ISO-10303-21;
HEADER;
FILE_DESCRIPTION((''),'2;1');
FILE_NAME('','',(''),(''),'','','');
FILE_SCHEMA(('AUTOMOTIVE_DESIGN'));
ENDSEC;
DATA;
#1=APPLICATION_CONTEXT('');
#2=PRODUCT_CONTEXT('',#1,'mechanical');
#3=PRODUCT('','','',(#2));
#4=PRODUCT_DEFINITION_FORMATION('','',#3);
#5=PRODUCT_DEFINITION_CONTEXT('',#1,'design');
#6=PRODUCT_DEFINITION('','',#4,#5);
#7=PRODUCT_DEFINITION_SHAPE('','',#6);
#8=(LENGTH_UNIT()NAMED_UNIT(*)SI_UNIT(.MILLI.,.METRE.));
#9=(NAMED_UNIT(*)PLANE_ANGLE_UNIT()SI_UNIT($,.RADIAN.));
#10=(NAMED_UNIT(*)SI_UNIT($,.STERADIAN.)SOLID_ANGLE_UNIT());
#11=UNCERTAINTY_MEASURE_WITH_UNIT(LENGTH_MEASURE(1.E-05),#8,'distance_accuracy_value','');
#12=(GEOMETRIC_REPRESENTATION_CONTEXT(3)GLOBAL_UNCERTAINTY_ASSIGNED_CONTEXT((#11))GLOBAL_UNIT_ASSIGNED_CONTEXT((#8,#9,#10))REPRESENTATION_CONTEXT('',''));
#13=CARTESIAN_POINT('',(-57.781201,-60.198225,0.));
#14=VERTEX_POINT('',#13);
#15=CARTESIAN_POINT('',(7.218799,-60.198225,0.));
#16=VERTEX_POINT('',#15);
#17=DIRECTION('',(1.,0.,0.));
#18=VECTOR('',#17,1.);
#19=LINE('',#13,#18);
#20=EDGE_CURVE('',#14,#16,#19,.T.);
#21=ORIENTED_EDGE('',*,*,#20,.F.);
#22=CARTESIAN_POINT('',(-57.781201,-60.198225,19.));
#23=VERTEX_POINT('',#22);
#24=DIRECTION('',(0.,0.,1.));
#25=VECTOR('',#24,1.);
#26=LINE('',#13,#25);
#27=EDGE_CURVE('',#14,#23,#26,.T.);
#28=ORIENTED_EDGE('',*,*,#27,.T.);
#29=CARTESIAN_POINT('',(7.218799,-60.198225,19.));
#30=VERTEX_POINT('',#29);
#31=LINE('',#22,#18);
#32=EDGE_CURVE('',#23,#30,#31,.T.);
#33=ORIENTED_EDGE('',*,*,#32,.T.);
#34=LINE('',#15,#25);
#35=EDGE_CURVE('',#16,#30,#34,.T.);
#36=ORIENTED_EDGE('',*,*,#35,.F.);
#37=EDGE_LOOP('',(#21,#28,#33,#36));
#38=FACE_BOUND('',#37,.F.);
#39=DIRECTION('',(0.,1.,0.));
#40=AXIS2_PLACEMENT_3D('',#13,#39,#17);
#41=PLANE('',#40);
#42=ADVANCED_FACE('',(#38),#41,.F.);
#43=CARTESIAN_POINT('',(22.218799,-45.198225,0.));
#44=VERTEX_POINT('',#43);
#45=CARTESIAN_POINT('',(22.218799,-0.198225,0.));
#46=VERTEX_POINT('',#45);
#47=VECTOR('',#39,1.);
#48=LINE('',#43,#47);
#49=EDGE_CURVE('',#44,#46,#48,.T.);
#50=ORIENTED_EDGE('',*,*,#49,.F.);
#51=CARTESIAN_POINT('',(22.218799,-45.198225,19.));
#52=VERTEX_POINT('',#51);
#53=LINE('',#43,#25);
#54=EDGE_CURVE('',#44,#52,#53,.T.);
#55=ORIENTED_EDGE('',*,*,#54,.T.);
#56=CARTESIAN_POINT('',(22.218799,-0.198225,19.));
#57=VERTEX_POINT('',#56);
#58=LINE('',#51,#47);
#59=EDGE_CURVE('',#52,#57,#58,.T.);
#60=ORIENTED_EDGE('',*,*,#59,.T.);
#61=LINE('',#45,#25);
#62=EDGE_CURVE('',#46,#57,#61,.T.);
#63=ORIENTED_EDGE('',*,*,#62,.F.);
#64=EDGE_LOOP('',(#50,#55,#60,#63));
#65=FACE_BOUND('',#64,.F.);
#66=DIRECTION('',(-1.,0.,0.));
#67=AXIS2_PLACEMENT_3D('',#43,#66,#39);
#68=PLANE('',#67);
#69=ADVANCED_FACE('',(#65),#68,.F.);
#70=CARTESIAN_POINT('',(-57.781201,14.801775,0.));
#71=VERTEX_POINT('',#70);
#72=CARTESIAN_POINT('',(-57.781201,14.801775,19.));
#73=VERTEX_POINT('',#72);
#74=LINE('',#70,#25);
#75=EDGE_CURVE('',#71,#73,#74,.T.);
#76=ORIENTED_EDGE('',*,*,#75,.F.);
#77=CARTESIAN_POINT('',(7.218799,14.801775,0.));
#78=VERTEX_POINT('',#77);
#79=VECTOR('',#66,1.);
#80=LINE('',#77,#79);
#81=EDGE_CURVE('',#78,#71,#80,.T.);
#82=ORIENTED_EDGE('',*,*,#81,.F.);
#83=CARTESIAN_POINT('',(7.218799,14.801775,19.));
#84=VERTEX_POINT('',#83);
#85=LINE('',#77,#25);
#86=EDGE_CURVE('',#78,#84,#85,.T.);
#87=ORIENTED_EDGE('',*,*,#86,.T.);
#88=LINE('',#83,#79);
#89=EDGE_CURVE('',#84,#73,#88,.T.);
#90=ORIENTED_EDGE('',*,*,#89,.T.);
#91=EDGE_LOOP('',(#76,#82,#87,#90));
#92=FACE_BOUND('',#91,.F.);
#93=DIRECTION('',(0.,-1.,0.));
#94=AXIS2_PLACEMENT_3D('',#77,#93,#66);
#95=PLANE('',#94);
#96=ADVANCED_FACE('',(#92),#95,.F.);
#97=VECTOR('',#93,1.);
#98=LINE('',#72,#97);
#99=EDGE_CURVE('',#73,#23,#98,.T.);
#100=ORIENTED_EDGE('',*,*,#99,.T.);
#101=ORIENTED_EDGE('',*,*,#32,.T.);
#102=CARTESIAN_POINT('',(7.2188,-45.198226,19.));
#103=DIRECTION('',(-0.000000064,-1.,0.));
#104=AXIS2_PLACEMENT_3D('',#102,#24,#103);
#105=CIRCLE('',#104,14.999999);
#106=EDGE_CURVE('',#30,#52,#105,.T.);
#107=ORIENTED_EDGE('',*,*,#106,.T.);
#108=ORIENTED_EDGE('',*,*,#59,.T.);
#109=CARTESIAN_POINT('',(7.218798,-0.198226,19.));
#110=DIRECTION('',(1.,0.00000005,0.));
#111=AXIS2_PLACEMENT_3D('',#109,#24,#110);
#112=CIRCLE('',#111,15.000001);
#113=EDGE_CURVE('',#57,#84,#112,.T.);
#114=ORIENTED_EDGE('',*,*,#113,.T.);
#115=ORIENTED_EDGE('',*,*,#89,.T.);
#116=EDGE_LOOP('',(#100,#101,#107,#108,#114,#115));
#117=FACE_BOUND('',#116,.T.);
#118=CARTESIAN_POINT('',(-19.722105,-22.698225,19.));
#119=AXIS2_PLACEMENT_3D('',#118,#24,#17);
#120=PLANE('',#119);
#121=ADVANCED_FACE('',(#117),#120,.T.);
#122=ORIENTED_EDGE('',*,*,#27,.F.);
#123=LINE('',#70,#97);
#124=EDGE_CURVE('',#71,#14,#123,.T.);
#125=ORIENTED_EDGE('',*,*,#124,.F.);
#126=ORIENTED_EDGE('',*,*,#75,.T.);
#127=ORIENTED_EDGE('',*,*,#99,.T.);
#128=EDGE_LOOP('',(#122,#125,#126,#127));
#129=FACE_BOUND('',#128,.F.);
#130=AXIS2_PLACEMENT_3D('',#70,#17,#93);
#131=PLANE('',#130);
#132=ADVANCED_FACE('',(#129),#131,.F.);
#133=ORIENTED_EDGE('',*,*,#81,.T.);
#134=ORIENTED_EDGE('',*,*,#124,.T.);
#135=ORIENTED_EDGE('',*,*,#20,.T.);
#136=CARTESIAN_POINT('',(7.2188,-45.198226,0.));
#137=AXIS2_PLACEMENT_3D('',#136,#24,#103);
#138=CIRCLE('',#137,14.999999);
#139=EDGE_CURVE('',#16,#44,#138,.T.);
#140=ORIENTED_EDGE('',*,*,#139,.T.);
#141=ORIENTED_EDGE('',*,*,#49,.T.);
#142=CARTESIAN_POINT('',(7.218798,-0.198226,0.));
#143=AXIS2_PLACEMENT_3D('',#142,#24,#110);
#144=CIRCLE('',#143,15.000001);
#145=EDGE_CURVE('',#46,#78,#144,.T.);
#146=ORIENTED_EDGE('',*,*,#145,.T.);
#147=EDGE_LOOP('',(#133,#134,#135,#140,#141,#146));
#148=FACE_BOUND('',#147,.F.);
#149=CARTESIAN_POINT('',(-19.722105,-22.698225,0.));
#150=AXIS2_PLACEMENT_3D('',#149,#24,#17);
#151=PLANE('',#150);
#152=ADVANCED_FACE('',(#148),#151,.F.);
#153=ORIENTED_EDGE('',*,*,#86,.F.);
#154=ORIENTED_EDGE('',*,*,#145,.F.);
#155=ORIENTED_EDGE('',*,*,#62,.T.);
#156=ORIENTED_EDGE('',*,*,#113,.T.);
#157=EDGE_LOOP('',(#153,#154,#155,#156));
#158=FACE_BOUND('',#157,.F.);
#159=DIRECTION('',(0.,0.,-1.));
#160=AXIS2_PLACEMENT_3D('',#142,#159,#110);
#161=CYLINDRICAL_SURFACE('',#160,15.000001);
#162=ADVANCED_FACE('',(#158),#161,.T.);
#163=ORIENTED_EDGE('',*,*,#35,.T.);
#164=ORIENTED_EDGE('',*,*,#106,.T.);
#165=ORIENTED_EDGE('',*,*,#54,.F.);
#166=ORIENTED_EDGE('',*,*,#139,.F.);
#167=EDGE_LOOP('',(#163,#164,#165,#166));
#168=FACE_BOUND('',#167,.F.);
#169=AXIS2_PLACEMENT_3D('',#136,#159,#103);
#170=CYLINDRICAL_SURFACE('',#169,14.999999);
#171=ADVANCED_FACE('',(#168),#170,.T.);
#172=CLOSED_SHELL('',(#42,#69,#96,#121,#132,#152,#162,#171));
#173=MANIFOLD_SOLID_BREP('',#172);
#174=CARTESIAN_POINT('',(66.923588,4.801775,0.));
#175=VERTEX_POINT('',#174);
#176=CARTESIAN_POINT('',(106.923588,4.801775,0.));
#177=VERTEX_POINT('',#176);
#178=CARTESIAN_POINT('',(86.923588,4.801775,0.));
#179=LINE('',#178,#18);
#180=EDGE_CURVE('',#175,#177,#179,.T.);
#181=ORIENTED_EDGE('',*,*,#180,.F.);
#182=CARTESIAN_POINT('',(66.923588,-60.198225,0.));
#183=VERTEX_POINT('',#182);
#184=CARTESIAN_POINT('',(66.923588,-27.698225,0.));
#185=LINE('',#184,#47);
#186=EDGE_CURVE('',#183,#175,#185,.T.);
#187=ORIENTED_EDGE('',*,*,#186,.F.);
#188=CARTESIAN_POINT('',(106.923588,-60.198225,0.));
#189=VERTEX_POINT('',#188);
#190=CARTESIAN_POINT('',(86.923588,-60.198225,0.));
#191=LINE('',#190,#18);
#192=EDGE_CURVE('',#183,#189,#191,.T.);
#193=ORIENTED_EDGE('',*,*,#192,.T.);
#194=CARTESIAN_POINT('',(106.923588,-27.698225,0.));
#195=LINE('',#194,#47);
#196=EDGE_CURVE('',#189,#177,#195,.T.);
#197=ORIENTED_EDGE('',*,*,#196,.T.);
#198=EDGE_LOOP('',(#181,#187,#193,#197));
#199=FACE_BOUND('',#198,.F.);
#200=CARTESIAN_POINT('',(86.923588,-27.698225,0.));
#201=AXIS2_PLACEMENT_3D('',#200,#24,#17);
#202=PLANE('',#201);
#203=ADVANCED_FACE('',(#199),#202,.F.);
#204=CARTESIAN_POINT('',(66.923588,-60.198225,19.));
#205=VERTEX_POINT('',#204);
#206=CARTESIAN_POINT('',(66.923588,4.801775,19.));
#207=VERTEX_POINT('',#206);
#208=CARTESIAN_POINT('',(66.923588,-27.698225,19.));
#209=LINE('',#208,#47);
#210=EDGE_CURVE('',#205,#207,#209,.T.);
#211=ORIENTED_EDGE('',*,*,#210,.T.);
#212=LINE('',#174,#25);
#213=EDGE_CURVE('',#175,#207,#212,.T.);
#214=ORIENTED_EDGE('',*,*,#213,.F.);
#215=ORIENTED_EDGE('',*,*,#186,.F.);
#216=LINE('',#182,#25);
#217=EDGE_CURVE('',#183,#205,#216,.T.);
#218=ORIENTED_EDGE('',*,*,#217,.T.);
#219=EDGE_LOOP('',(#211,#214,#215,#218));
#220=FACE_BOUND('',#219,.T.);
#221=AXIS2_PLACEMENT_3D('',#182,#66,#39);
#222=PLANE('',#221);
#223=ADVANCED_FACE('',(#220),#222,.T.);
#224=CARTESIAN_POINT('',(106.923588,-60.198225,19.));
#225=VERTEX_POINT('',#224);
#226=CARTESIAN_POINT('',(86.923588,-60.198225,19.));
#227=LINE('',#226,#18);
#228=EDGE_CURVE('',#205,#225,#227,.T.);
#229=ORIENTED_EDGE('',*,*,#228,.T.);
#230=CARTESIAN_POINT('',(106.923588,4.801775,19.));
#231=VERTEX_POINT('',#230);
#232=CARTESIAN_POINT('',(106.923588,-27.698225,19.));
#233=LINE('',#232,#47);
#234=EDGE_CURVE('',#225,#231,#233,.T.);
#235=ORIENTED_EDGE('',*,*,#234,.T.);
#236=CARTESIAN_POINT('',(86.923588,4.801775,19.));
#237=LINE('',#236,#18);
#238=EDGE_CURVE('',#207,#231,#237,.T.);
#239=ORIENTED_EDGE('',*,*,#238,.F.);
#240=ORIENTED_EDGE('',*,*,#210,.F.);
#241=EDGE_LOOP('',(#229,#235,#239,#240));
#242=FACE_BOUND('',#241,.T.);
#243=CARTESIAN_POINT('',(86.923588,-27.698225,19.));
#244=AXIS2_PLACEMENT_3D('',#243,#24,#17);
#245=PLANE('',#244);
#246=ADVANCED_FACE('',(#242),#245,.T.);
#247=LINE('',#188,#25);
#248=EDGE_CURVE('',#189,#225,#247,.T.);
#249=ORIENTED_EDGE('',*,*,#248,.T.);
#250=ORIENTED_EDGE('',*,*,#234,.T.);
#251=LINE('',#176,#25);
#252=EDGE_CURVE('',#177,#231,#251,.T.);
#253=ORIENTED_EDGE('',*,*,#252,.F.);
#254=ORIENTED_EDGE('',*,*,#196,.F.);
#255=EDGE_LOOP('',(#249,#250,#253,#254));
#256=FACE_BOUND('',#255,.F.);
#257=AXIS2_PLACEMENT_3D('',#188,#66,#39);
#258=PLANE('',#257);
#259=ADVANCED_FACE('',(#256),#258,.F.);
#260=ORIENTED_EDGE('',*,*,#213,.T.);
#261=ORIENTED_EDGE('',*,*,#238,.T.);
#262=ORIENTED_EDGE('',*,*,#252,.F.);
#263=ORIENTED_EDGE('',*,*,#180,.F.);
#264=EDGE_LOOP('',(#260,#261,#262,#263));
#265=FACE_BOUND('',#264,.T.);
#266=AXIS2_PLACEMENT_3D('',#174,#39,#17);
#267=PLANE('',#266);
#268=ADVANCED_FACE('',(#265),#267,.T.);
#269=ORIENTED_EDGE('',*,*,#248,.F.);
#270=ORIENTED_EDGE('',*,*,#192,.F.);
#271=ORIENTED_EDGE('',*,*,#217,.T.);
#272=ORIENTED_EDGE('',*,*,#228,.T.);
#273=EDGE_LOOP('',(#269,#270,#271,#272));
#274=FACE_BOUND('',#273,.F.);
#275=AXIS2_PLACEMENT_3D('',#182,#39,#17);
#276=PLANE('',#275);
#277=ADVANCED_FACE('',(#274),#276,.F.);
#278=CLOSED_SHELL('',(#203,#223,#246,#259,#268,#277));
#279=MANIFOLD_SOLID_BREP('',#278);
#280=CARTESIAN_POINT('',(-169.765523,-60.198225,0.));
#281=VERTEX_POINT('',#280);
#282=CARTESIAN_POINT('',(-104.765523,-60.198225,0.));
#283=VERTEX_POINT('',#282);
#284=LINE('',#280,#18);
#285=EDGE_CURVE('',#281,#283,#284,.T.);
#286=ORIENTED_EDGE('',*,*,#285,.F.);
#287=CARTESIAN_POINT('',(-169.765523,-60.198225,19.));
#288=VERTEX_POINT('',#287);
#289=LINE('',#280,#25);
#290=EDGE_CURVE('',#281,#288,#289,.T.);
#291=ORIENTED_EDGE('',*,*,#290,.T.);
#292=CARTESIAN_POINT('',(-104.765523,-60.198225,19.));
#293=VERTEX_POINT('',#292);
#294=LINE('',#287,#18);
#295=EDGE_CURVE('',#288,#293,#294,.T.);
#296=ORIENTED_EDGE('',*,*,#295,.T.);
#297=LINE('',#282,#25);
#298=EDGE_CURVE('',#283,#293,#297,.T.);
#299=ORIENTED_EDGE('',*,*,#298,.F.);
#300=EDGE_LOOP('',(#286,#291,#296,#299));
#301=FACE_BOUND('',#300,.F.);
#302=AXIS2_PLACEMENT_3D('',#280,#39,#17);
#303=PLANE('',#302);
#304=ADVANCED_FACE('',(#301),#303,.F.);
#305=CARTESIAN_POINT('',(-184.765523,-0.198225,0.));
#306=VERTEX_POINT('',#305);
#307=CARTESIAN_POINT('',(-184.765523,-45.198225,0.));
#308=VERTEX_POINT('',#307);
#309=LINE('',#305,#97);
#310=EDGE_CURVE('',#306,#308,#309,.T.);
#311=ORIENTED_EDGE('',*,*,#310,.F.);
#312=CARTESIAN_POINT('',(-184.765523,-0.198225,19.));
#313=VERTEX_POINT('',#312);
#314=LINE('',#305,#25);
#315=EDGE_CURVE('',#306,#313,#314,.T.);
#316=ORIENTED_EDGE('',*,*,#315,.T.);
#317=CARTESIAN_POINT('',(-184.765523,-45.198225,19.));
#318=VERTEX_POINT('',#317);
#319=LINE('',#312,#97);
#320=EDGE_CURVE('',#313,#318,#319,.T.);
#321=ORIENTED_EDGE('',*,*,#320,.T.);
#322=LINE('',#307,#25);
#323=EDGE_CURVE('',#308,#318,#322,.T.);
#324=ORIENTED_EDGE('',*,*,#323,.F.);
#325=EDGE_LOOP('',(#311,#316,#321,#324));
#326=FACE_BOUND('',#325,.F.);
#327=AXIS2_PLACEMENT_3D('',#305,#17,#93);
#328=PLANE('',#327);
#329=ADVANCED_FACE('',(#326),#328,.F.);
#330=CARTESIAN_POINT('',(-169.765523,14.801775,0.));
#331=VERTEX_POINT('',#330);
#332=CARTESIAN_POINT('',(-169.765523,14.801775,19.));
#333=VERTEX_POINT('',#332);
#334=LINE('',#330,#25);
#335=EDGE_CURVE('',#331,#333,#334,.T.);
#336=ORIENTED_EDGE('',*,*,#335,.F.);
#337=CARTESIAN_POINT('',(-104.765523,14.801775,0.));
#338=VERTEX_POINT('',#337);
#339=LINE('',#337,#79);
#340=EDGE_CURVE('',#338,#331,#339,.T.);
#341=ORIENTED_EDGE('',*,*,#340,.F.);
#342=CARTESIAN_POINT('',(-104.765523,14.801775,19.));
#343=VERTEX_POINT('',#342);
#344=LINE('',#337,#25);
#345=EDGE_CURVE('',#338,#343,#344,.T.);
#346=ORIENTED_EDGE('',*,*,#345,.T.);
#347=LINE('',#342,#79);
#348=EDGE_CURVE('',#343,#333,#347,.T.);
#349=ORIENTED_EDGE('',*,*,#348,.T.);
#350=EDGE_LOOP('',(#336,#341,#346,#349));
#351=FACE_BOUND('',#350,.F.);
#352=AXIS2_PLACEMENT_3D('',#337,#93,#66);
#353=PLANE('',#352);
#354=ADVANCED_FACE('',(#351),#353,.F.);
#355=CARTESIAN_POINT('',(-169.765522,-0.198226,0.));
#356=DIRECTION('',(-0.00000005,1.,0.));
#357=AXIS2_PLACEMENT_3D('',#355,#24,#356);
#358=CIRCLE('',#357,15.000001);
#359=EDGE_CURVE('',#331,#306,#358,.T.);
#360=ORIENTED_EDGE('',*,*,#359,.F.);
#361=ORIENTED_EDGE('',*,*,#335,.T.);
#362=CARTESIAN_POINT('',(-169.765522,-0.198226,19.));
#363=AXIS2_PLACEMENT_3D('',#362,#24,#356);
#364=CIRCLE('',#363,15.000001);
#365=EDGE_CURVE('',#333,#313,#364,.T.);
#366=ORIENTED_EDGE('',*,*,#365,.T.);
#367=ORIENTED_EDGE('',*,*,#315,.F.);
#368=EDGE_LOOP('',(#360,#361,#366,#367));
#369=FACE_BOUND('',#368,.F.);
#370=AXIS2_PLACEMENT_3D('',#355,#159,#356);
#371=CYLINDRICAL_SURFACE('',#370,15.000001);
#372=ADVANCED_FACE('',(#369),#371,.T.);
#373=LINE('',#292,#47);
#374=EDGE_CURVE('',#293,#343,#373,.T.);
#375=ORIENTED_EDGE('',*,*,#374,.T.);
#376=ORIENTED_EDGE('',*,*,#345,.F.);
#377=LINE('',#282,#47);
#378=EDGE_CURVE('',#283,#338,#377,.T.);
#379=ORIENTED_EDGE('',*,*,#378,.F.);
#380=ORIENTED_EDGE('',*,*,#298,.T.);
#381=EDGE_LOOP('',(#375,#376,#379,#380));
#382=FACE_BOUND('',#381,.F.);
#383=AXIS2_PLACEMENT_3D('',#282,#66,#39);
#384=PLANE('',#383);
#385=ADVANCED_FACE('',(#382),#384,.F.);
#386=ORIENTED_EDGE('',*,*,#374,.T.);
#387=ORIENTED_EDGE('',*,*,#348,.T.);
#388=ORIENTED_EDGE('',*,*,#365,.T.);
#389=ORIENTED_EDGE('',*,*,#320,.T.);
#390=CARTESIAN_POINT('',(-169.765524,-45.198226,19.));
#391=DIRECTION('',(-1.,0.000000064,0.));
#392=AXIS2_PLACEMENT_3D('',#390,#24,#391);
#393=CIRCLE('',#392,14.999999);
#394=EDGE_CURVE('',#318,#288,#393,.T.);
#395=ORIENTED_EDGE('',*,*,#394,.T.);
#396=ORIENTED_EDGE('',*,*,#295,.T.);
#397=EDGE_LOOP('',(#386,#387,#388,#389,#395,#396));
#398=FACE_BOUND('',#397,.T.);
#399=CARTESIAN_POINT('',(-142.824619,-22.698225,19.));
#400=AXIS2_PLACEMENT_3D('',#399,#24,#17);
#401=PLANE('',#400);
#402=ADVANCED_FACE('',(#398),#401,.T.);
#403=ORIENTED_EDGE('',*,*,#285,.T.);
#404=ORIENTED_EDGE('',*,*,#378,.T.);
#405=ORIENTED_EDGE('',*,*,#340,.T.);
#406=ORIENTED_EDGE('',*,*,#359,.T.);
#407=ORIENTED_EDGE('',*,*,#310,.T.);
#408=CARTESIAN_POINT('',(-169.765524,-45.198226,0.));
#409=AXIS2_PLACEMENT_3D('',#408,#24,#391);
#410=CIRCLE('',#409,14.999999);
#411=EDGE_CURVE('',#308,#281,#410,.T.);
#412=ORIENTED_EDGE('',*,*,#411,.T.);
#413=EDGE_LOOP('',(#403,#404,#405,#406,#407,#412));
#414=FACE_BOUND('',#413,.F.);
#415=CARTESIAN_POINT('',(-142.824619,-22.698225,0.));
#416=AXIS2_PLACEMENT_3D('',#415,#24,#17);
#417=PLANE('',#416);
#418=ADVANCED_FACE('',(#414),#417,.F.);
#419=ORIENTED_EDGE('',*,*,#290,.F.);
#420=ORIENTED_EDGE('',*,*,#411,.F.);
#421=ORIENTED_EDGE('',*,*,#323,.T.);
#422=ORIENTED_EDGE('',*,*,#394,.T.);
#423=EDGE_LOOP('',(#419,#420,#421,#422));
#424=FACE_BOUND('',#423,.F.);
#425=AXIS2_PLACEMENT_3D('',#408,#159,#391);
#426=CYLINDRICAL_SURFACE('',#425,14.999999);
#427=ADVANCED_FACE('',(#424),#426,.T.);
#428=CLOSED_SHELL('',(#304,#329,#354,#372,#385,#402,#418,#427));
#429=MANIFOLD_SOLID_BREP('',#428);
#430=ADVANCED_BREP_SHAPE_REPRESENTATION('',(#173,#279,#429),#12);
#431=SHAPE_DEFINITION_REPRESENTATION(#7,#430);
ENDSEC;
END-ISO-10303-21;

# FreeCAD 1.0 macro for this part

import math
import FreeCAD as App
import Part
import Sketcher
from FreeCAD import Vector


def add_polygon(sketch, points):
    """Adds a closed chain of lines whose ends are joined by coincident constraints."""
    first, n = sketch.GeometryCount, len(points)
    for a, b in zip(points, points[1:] + points[:1]):
        sketch.addGeometry(Part.LineSegment(App.Vector(*a, 0), App.Vector(*b, 0)), False)
    for i in range(n):
        sketch.addConstraint(Sketcher.Constraint("Coincident", first + i, 2, first + (i + 1) % n, 1))

doc = App.newDocument("Part")
params = doc.addObject("Spreadsheet::Sheet", "Params")
for row, (alias, value) in enumerate([
    ("sketch1_radius", "15.000001 mm"),
    ("sketch1_width", "65 mm"),
    ("sketch1_width2", "40 mm"),
    ("sketch1_height", "45 mm"),
    ("pad1_length", "19 mm"),
], start=1):
    params.set(f"A{row}", alias)
    params.set(f"B{row}", "=" + value)
    params.setAlias(f"B{row}", alias)

body = doc.addObject("PartDesign::Body", "Body")
body.AllowCompound = True

# Sketch on XY plane
sketch1 = body.newObject("Sketcher::SketchObject", "Sketch")
sketch1.AttachmentSupport = (doc.getObject("XY_Plane"), [""])
sketch1.MapMode = "FlatFace"
sketch1.addGeometry(Part.LineSegment(Vector(-105, 15, 0), Vector(-170, 15, 0)), False)  # 0
sketch1.addGeometry(Part.ArcOfCircle(Part.Circle(Vector(-170, 0, 0), Vector(0, 0, 1), 15), math.radians(90), math.radians(180)), False)  # 1
sketch1.addGeometry(Part.LineSegment(Vector(-185, 0, 0), Vector(-185, -45, 0)), False)  # 2
sketch1.addGeometry(Part.ArcOfCircle(Part.Circle(Vector(-170, -45, 0), Vector(0, 0, 1), 15), math.radians(180), math.radians(270)), False)  # 3
sketch1.addGeometry(Part.LineSegment(Vector(-170, -60, 0), Vector(-105, -60, 0)), False)  # 4
sketch1.addGeometry(Part.LineSegment(Vector(-105, -60, 0), Vector(-105, 15, 0)), False)  # 5
sketch1.addGeometry(Part.LineSegment(Vector(7, 15, 0), Vector(-58, 15, 0)), False)  # 6
sketch1.addGeometry(Part.LineSegment(Vector(-58, 15, 0), Vector(-58, -60, 0)), False)  # 7
sketch1.addGeometry(Part.LineSegment(Vector(-58, -60, 0), Vector(7, -60, 0)), False)  # 8
sketch1.addGeometry(Part.ArcOfCircle(Part.Circle(Vector(7, -45, 0), Vector(0, 0, 1), 15), math.radians(-90), math.radians(0)), False)  # 9
sketch1.addGeometry(Part.LineSegment(Vector(22, -45, 0), Vector(22, 0, 0)), False)  # 10
sketch1.addGeometry(Part.ArcOfCircle(Part.Circle(Vector(7, 0, 0), Vector(0, 0, 1), 15), math.radians(0), math.radians(90)), False)  # 11
add_polygon(sketch1, [(67, 5), (67, -60), (107, -60), (107, 5)])  # lines 12-15
sketch1.addConstraint(Sketcher.Constraint("Tangent", 0, 2, 1, 1))
sketch1.addConstraint(Sketcher.Constraint("Tangent", 1, 2, 2, 1))
sketch1.addConstraint(Sketcher.Constraint("Tangent", 2, 2, 3, 1))
sketch1.addConstraint(Sketcher.Constraint("Tangent", 3, 2, 4, 1))
sketch1.addConstraint(Sketcher.Constraint("Coincident", 4, 2, 5, 1))
sketch1.addConstraint(Sketcher.Constraint("Coincident", 5, 2, 0, 1))
sketch1.addConstraint(Sketcher.Constraint("Coincident", 6, 2, 7, 1))
sketch1.addConstraint(Sketcher.Constraint("Coincident", 7, 2, 8, 1))
sketch1.addConstraint(Sketcher.Constraint("Tangent", 8, 2, 9, 1))
sketch1.addConstraint(Sketcher.Constraint("Tangent", 9, 2, 10, 1))
sketch1.addConstraint(Sketcher.Constraint("Tangent", 10, 2, 11, 1))
sketch1.addConstraint(Sketcher.Constraint("Tangent", 11, 2, 6, 1))
sketch1.addConstraint(Sketcher.Constraint("Horizontal", 0))
sketch1.addConstraint(Sketcher.Constraint("Vertical", 2))
sketch1.addConstraint(Sketcher.Constraint("Horizontal", 4))
sketch1.addConstraint(Sketcher.Constraint("Vertical", 5))
sketch1.addConstraint(Sketcher.Constraint("Horizontal", 6))
sketch1.addConstraint(Sketcher.Constraint("Vertical", 7))
sketch1.addConstraint(Sketcher.Constraint("Horizontal", 8))
sketch1.addConstraint(Sketcher.Constraint("Vertical", 10))
sketch1.addConstraint(Sketcher.Constraint("Vertical", 12))
sketch1.addConstraint(Sketcher.Constraint("Horizontal", 13))
sketch1.addConstraint(Sketcher.Constraint("Vertical", 14))
sketch1.addConstraint(Sketcher.Constraint("Horizontal", 15))
sketch1.addConstraint(Sketcher.Constraint("Equal", 1, 3))
sketch1.addConstraint(Sketcher.Constraint("Equal", 3, 9))
sketch1.addConstraint(Sketcher.Constraint("Equal", 9, 11))
sketch1.addConstraint(Sketcher.Constraint("Horizontal", 3, 3, 9, 3))
sketch1.addConstraint(Sketcher.Constraint("Horizontal", 1, 3, 11, 3))
sketch1.addConstraint(Sketcher.Constraint("Horizontal", 8, 2, 12, 2))
sketch1.addConstraint(Sketcher.Constraint("Equal", 4, 6))
sketch1.addConstraint(Sketcher.Constraint("Equal", 8, 12))
sketch1.addConstraint(Sketcher.Constraint("Radius", 1, 15.000001))
sketch1.addConstraint(Sketcher.Constraint("DistanceX", 0, 2, 0, 1, 65.0))
sketch1.addConstraint(Sketcher.Constraint("DistanceX", 13, 1, 13, 2, 40.0))
sketch1.addConstraint(Sketcher.Constraint("DistanceY", 2, 2, 2, 1, 45.0))
sketch1.addConstraint(Sketcher.Constraint("DistanceX", -1, 1, 9, 3, 7.2188))
sketch1.addConstraint(Sketcher.Constraint("DistanceX", 1, 3, 11, 3, 176.984321))
sketch1.addConstraint(Sketcher.Constraint("DistanceX", 9, 2, 12, 2, 44.704789))
sketch1.addConstraint(Sketcher.Constraint("DistanceY", 1, 3, -1, 1, 0.198226))
sketch1.setExpression("Constraints[36]", "Params.sketch1_radius")
sketch1.setExpression("Constraints[37]", "Params.sketch1_width")
sketch1.setExpression("Constraints[38]", "Params.sketch1_width2")
sketch1.setExpression("Constraints[39]", "Params.sketch1_height")
pad1 = body.newObject("PartDesign::Pad", "Pad")
pad1.Profile = sketch1
pad1.setExpression("Length", "Params.pad1_length")

doc.recompute()
